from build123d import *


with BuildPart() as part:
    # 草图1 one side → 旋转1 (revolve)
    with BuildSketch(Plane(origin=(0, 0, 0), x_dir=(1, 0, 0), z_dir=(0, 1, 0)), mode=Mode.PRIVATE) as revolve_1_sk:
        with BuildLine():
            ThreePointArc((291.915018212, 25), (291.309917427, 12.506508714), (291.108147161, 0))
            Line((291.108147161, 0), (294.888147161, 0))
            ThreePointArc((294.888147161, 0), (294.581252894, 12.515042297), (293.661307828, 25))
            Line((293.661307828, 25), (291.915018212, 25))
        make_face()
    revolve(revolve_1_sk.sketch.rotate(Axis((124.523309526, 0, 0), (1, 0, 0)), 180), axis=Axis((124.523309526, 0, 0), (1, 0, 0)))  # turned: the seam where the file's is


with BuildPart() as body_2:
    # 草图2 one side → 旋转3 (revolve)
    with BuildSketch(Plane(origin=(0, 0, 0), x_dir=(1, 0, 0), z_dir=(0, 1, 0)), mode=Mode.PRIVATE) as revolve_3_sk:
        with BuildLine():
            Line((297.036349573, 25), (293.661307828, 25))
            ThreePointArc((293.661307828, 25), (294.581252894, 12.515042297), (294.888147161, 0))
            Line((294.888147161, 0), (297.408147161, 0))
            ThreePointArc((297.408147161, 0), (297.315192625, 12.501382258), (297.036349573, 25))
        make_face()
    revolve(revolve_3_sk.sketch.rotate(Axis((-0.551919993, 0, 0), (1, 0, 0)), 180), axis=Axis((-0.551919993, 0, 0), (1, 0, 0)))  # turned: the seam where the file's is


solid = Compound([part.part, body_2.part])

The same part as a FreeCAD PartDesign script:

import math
import FreeCAD as App
import Part
import Sketcher
from FreeCAD import Vector

doc = App.newDocument("Part")
body = doc.addObject("PartDesign::Body", "Body")

sketch1 = body.newObject("Sketcher::SketchObject", "Sketch")
sketch1.AttachmentSupport = (doc.getObject("XZ_Plane"), [""])
sketch1.MapMode = "FlatFace"
sketch1.addGeometry(Part.ArcOfCircle(Part.Circle(Vector(678.810147, 0, 0), Vector(0, 0, 1), 387.702), math.radians(180), math.radians(183.697141)), False)
sketch1.addGeometry(Part.LineSegment(Vector(291.108147, 0, 0), Vector(294.888147, 0, 0)), False)
sketch1.addGeometry(Part.ArcOfCircle(Part.Circle(Vector(39.555147, 0, 0), Vector(0, 0, 1), 255.333), math.radians(-5.61891), math.radians(0)), False)
sketch1.addGeometry(Part.LineSegment(Vector(293.661308, -25, 0), Vector(291.915018, -25, 0)), False)
sketch1.addConstraint(Sketcher.Constraint("Coincident", 0, 1, 1, 1))
sketch1.addConstraint(Sketcher.Constraint("Coincident", 1, 2, 2, 2))
sketch1.addConstraint(Sketcher.Constraint("Coincident", 2, 1, 3, 1))
sketch1.addConstraint(Sketcher.Constraint("Coincident", 3, 2, 0, 2))
sketch1.addConstraint(Sketcher.Constraint("Horizontal", 1))
sketch1.addConstraint(Sketcher.Constraint("Horizontal", 3))
sketch1.addConstraint(Sketcher.Constraint("PointOnObject", 0, 3, -1))
sketch1.addConstraint(Sketcher.Constraint("PointOnObject", 2, 3, -1))
sketch1.addConstraint(Sketcher.Constraint("PointOnObject", 1, 2, -1))
sketch1.addConstraint(Sketcher.Constraint("DistanceY", 2, 1, -1, 1, 25.0))
sketch1.addConstraint(Sketcher.Constraint("Radius", 0, 387.702))
sketch1.addConstraint(Sketcher.Constraint("Radius", 2, 255.333))
sketch1.addConstraint(Sketcher.Constraint("DistanceX", 1, 1, 1, 2, 3.78))
sketch1.addConstraint(Sketcher.Constraint("DistanceX", -1, 1, 3, 2, 291.915018))
revolution = body.newObject("PartDesign::Revolution", "Revolution")
revolution.Profile = sketch1
revolution.ReferenceAxis = (sketch1, ["H_Axis"])
revolution.Angle = 360
body2 = doc.addObject("PartDesign::Body", "Body001")

sketch2 = body2.newObject("Sketcher::SketchObject", "Sketch001")
sketch2.AttachmentSupport = (doc.getObject("XZ_Plane001"), [""])
sketch2.MapMode = "FlatFace"
sketch2.addGeometry(Part.LineSegment(Vector(297.03635, -25, 0), Vector(293.661308, -25, 0)), False)
sketch2.addGeometry(Part.ArcOfCircle(Part.Circle(Vector(39.555147, 0, 0), Vector(0, 0, 1), 255.333), math.radians(-5.61891), math.radians(0)), False)
sketch2.addGeometry(Part.LineSegment(Vector(294.888147, 0, 0), Vector(297.408147, 0, 0)), False)
sketch2.addGeometry(Part.ArcOfCircle(Part.Circle(Vector(-543.288853, 0, 0), Vector(0, 0, 1), 840.697), math.radians(-1.704069), math.radians(0)), False)
sketch2.addConstraint(Sketcher.Constraint("Coincident", 0, 2, 1, 1))
sketch2.addConstraint(Sketcher.Constraint("Coincident", 1, 2, 2, 1))
sketch2.addConstraint(Sketcher.Constraint("Coincident", 2, 2, 3, 2))
sketch2.addConstraint(Sketcher.Constraint("Coincident", 3, 1, 0, 1))
sketch2.addConstraint(Sketcher.Constraint("Horizontal", 0))
sketch2.addConstraint(Sketcher.Constraint("Horizontal", 2))
sketch2.addConstraint(Sketcher.Constraint("PointOnObject", 1, 3, -1))
sketch2.addConstraint(Sketcher.Constraint("PointOnObject", 3, 3, -1))
sketch2.addConstraint(Sketcher.Constraint("PointOnObject", 1, 2, -1))
sketch2.addConstraint(Sketcher.Constraint("DistanceY", 0, 2, -1, 1, 25.0))
sketch2.addConstraint(Sketcher.Constraint("Radius", 1, 255.333))
sketch2.addConstraint(Sketcher.Constraint("Radius", 3, 840.697))
sketch2.addConstraint(Sketcher.Constraint("DistanceX", 2, 1, 2, 2, 2.52))
sketch2.addConstraint(Sketcher.Constraint("DistanceX", -1, 1, 3, 1, 297.03635))
revolution2 = body2.newObject("PartDesign::Revolution", "Revolution001")
revolution2.Profile = sketch2
revolution2.ReferenceAxis = (sketch2, ["H_Axis"])
revolution2.Angle = 360

doc.recompute()
